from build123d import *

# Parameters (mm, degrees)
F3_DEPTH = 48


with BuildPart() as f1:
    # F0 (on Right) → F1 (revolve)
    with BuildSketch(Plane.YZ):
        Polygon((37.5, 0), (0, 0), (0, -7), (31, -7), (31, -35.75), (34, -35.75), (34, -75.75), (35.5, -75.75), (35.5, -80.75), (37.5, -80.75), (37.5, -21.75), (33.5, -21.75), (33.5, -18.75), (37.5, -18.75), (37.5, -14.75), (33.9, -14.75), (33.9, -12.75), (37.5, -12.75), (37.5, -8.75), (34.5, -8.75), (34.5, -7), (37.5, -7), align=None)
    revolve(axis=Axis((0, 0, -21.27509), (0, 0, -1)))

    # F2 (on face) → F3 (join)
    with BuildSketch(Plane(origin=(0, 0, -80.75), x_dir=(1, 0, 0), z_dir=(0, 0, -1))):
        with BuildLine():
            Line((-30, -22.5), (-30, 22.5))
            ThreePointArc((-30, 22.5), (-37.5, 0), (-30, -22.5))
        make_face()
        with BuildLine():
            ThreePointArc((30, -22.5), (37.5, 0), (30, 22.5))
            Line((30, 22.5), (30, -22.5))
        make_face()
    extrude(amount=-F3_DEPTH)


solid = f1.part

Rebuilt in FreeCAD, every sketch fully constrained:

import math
import FreeCAD as App
import Part
import Sketcher
Q = App.Units.Quantity


def add_polygon(sketch, points):
    """Adds a closed chain of lines whose ends are joined by coincident constraints."""
    first, n = sketch.GeometryCount, len(points)
    for a, b in zip(points, points[1:] + points[:1]):
        sketch.addGeometry(Part.LineSegment(App.Vector(*a, 0), App.Vector(*b, 0)), False)
    for i in range(n):
        sketch.addConstraint(Sketcher.Constraint("Coincident", first + i, 2, first + (i + 1) % n, 1))

doc = App.newDocument("Part")
body = doc.addObject("PartDesign::Body", "Body")

sketch1 = body.newObject("Sketcher::SketchObject", "Sketch")
sketch1.AttachmentSupport = (doc.getObject("YZ_Plane"), [""])
sketch1.MapMode = "FlatFace"
add_polygon(sketch1, [(37.5, 0), (0, 0), (0, -7), (31, -7), (31, -35.75), (34, -35.75), (34, -75.75), (35.5, -75.75), (35.5, -80.75), (37.5, -80.75), (37.5, -21.75), (33.5, -21.75), (33.5, -18.75), (37.5, -18.75), (37.5, -14.75), (33.9, -14.75), (33.9, -12.75), (37.5, -12.75), (37.5, -8.75), (34.5, -8.75), (34.5, -7), (37.5, -7)])
sketch1.addConstraint([
    Sketcher.Constraint("Horizontal", 0),
    Sketcher.Constraint("Vertical", 1),
    Sketcher.Constraint("Horizontal", 2),
    Sketcher.Constraint("Vertical", 3),
    Sketcher.Constraint("Horizontal", 4),
    Sketcher.Constraint("Vertical", 5),
    Sketcher.Constraint("Horizontal", 6),
    Sketcher.Constraint("Vertical", 7),
    Sketcher.Constraint("Horizontal", 8),
    Sketcher.Constraint("Vertical", 9),
    Sketcher.Constraint("Horizontal", 10),
    Sketcher.Constraint("Vertical", 11),
    Sketcher.Constraint("Horizontal", 12),
    Sketcher.Constraint("Vertical", 13),
    Sketcher.Constraint("Horizontal", 14),
    Sketcher.Constraint("Vertical", 15),
    Sketcher.Constraint("Horizontal", 16),
    Sketcher.Constraint("Vertical", 17),
    Sketcher.Constraint("Horizontal", 18),
    Sketcher.Constraint("Vertical", 19),
    Sketcher.Constraint("Horizontal", 20),
    Sketcher.Constraint("Vertical", 21),
    Sketcher.Constraint("Coincident", 0, 2, -1, 1),
    Sketcher.Constraint("Horizontal", 2, 2, 19, 2),
    Sketcher.Constraint("Vertical", 9, 2, 12, 2),
    Sketcher.Constraint("Vertical", 13, 2, 16, 2),
    Sketcher.Constraint("Vertical", 17, 2, 20, 2),
    Sketcher.Constraint("Equal", 4, 18),
    Sketcher.Constraint("Equal", 20, 11),
    Sketcher.Constraint("Equal", 12, 13),
    Sketcher.Constraint("Equal", 8, 15),
    Sketcher.Constraint("Equal", 13, 17),
    Sketcher.Constraint("DistanceX", 2, 1, 2, 2, Q("31 mm")),
    Sketcher.Constraint("DistanceX", 4, 1, 4, 2, Q("3 mm")),
    Sketcher.Constraint("DistanceX", 8, 1, 8, 2, Q("2 mm")),
    Sketcher.Constraint("DistanceX", 10, 2, 10, 1, Q("4 mm")),
    Sketcher.Constraint("DistanceY", 1, 2, 1, 1, Q("7 mm")),
    Sketcher.Constraint("DistanceY", 5, 2, 5, 1, Q("40 mm")),
    Sketcher.Constraint("DistanceY", 7, 2, 7, 1, Q("5 mm")),
    Sketcher.Constraint("DistanceY", 9, 1, 9, 2, Q("59 mm")),
    Sketcher.Constraint("DistanceX", 0, 2, 0, 1, Q("37.5 mm")),
    Sketcher.Constraint("DistanceX", 14, 2, 14, 1, Q("3.6 mm")),
    Sketcher.Constraint("DistanceY", 3, 2, 3, 1, Q("28.75 mm")),
])
revolution = body.newObject("PartDesign::Revolution", "Revolution")
revolution.Profile = sketch1
revolution.ReferenceAxis = (sketch1, ["V_Axis"])
revolution.Angle = 360

sketch2 = body.newObject("Sketcher::SketchObject", "Sketch001")
sketch2.AttachmentSupport = (doc.getObject("XY_Plane"), [""])
sketch2.MapMode = "FlatFace"
sketch2.AttachmentOffset = App.Placement(App.Vector(0, 0, -80.75), App.Rotation())
sketch2.addGeometry([
    Part.LineSegment(App.Vector(-30, 22.5, 0), App.Vector(-30, -22.5, 0)),
    Part.ArcOfCircle(Part.Circle(App.Vector(0, 0, 0), App.Vector(0, 0, 1), 37.5), math.radians(143.130102), math.radians(216.869898)),
    Part.ArcOfCircle(Part.Circle(App.Vector(0, 0, 0), App.Vector(0, 0, 1), 37.5), math.radians(-36.869898), math.radians(36.869898)),
    Part.LineSegment(App.Vector(30, -22.5, 0), App.Vector(30, 22.5, 0)),
], False)
sketch2.addConstraint([
    Sketcher.Constraint("Coincident", 0, 1, 1, 1),
    Sketcher.Constraint("Coincident", 1, 2, 0, 2),
    Sketcher.Constraint("Coincident", 2, 1, 3, 1),
    Sketcher.Constraint("Coincident", 3, 2, 2, 2),
    Sketcher.Constraint("Vertical", 0),
    Sketcher.Constraint("Vertical", 3),
    Sketcher.Constraint("Coincident", 1, 3, -1, 1),
    Sketcher.Constraint("Coincident", 2, 3, -1, 1),
    Sketcher.Constraint("Equal", 1, 2),
    Sketcher.Constraint("Horizontal", 1, 2, 2, 1),
    Sketcher.Constraint("Radius", 1, Q("37.5 mm")),
    Sketcher.Constraint("DistanceY", 0, 2, 0, 1, Q("45 mm")),
])
pad1 = body.newObject("PartDesign::Pad", "Pad")
pad1.Profile = sketch2
pad1.Length = 48

doc.recompute()
